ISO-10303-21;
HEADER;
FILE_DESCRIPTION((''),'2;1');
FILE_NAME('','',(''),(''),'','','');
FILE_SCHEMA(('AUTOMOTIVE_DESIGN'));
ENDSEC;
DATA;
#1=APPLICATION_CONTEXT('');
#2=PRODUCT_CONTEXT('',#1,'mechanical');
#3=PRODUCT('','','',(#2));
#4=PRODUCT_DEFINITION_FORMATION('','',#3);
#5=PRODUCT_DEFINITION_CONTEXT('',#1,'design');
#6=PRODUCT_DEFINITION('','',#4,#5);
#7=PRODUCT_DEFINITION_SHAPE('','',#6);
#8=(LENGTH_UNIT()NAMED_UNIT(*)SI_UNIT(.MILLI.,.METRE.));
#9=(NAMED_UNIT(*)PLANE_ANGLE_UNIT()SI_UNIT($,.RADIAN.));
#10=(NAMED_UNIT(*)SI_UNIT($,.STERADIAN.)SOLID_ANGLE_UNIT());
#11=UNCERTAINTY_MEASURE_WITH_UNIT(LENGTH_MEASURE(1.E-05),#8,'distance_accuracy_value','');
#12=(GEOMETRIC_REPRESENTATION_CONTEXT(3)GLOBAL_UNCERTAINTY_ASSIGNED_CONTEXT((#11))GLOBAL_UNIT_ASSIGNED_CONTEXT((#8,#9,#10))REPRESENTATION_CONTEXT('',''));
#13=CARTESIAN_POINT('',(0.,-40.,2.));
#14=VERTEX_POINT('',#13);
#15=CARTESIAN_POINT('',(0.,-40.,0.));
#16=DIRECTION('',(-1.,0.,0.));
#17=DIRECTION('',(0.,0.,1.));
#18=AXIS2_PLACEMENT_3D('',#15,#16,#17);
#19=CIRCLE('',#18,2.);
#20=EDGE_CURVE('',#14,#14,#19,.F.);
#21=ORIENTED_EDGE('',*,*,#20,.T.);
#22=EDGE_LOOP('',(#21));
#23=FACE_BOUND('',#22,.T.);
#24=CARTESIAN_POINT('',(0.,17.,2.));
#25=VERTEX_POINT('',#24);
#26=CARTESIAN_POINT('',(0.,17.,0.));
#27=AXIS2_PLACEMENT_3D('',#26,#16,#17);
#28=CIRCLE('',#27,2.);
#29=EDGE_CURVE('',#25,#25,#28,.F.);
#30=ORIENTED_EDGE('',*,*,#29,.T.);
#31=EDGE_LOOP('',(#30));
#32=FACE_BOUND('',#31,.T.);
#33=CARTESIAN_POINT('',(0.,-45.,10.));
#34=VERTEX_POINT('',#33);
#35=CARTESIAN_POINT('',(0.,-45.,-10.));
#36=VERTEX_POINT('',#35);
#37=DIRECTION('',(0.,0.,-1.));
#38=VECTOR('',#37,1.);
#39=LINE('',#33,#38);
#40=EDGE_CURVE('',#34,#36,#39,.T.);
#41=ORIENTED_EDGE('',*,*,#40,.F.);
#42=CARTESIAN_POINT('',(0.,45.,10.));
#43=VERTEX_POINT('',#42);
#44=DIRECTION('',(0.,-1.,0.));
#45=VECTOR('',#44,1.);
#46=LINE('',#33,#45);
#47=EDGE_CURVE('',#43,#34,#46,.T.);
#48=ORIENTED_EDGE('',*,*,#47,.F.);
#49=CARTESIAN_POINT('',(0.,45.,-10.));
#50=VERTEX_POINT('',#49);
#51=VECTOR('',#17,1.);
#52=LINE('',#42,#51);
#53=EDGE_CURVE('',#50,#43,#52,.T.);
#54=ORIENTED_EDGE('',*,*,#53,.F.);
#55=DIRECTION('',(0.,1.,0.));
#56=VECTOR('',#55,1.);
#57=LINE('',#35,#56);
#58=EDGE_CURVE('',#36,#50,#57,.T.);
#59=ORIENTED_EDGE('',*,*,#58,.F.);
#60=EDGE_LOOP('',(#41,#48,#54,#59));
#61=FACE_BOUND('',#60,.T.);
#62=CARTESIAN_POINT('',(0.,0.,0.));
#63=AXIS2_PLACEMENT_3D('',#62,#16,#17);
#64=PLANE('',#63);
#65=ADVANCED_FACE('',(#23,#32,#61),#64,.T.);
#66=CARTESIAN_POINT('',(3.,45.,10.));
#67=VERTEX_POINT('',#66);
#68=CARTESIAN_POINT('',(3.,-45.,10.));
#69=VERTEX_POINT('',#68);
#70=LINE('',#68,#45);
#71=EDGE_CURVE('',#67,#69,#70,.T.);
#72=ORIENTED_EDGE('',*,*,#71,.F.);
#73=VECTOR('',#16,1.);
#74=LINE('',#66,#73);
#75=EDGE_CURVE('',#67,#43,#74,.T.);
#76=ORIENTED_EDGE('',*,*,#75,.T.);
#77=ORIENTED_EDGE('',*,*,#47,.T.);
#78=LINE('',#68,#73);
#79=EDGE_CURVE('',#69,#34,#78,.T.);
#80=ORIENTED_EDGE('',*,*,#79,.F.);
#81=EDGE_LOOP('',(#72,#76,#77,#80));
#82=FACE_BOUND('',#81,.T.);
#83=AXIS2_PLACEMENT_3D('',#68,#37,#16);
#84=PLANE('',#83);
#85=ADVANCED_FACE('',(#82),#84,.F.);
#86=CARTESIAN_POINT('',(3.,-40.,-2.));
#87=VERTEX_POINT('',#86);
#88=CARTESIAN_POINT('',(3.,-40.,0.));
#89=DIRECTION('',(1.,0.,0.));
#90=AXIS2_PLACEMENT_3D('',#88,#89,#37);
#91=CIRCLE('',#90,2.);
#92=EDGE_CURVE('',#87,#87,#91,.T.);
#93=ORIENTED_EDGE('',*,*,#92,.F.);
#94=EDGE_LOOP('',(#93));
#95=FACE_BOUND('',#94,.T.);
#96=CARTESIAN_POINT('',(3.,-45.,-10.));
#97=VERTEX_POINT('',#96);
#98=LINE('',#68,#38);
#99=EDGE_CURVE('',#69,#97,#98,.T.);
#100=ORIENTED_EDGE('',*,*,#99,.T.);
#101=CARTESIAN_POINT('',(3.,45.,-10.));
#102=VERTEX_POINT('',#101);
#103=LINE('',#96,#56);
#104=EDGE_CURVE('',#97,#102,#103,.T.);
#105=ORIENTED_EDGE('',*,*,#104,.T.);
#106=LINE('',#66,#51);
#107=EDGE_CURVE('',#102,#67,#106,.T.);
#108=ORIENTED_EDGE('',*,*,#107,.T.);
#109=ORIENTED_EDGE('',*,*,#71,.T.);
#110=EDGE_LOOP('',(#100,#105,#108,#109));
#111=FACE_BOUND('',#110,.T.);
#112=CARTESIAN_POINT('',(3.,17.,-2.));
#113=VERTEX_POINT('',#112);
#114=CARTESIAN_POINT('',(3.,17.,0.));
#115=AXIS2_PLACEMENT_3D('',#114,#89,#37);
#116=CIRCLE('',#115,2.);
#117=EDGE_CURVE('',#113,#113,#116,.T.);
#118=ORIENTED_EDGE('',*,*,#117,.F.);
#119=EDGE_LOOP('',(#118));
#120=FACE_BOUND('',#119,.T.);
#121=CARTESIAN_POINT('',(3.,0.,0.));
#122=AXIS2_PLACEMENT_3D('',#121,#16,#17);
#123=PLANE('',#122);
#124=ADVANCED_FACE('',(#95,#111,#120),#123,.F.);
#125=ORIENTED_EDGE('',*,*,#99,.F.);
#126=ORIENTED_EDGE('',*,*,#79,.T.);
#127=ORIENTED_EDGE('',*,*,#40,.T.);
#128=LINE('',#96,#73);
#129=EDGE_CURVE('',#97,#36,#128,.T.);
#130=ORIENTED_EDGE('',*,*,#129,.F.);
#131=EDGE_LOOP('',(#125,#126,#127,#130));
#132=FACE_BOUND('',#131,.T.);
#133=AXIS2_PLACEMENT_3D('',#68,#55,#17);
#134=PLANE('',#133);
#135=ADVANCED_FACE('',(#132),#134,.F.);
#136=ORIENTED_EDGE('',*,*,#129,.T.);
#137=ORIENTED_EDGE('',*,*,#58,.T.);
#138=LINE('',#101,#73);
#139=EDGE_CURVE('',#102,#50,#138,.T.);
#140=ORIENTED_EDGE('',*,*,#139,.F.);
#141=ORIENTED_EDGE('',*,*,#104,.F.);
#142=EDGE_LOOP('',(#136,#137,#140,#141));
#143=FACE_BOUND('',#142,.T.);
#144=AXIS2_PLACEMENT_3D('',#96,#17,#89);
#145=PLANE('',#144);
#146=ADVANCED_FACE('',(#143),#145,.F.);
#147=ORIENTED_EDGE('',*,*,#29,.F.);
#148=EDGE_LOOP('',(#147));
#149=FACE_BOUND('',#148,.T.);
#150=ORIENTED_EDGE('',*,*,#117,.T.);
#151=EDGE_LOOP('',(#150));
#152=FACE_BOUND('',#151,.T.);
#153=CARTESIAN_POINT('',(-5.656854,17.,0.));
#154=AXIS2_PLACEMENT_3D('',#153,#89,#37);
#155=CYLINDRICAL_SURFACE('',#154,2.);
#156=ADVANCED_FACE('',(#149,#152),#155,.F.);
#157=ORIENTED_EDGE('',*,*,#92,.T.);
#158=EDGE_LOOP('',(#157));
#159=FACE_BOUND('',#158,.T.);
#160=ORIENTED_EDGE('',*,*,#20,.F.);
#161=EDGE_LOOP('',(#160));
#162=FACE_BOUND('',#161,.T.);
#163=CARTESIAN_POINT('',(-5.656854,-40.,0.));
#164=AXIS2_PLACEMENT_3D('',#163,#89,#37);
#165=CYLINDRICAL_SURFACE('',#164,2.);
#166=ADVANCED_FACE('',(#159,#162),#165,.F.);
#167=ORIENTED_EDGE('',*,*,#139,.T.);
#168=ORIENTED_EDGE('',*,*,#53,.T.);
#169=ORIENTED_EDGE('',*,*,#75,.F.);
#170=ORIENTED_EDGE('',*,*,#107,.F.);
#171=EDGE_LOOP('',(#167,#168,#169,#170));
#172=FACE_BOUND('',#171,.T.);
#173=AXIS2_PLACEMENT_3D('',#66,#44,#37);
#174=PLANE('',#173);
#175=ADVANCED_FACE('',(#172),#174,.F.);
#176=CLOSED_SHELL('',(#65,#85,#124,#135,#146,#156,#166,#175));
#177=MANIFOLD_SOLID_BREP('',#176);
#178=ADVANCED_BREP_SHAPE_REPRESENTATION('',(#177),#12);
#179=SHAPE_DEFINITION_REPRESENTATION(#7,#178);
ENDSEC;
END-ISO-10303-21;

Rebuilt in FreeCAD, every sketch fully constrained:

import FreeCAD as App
import Part
import Sketcher
Q = App.Units.Quantity

doc = App.newDocument("Part")
body = doc.addObject("PartDesign::Body", "Body")

sketch1 = body.newObject("Sketcher::SketchObject", "Sketch")
sketch1.AttachmentSupport = (doc.getObject("YZ_Plane"), [""])
sketch1.MapMode = "FlatFace"
sketch1.addGeometry(Part.LineSegment(App.Vector(45, 10, 0), App.Vector(-45, 10, 0)), False)
sketch1.addGeometry(Part.LineSegment(App.Vector(-45, 10, 0), App.Vector(-45, -10, 0)), False)
sketch1.addGeometry(Part.LineSegment(App.Vector(-45, -10, 0), App.Vector(45, -10, 0)), False)
sketch1.addGeometry(Part.LineSegment(App.Vector(45, -10, 0), App.Vector(45, 10, 0)), False)
sketch1.addConstraint(Sketcher.Constraint("Coincident", 0, 2, 1, 1))
sketch1.addConstraint(Sketcher.Constraint("Coincident", 1, 2, 2, 1))
sketch1.addConstraint(Sketcher.Constraint("Coincident", 2, 2, 3, 1))
sketch1.addConstraint(Sketcher.Constraint("Coincident", 3, 2, 0, 1))
sketch1.addConstraint(Sketcher.Constraint("Horizontal", 0))
sketch1.addConstraint(Sketcher.Constraint("Vertical", 1))
sketch1.addConstraint(Sketcher.Constraint("Horizontal", 2))
sketch1.addConstraint(Sketcher.Constraint("Vertical", 3))
sketch1.addConstraint(Sketcher.Constraint("Symmetric", 0, 2, 2, 2, -1, 1))
sketch1.addConstraint(Sketcher.Constraint("DistanceX", 0, 2, 0, 1, Q("90 mm")))
sketch1.addConstraint(Sketcher.Constraint("DistanceY", 1, 2, 1, 1, Q("20 mm")))
pad1 = body.newObject("PartDesign::Pad", "Pad")
pad1.Profile = sketch1
pad1.Length = 3

sketch2 = body.newObject("Sketcher::SketchObject", "Sketch001")
sketch2.AttachmentSupport = (doc.getObject("YZ_Plane"), [""])
sketch2.MapMode = "FlatFace"
sketch2.AttachmentOffset = App.Placement(App.Vector(0, 0, 3), App.Rotation())
sketch2.addGeometry(Part.Circle(App.Vector(17, 0, 0), App.Vector(0, 0, 1), 2), False)
sketch2.addGeometry(Part.Circle(App.Vector(-40, 0, 0), App.Vector(0, 0, 1), 2), False)
sketch2.addConstraint(Sketcher.Constraint("Equal", 0, 1))
sketch2.addConstraint(Sketcher.Constraint("PointOnObject", 0, 3, -1))
sketch2.addConstraint(Sketcher.Constraint("PointOnObject", 1, 3, -1))
sketch2.addConstraint(Sketcher.Constraint("Diameter", 0, Q("4 mm")))
sketch2.addConstraint(Sketcher.Constraint("DistanceX", -1, 1, 0, 3, Q("17 mm")))
sketch2.addConstraint(Sketcher.Constraint("DistanceX", 1, 3, -1, 1, Q("40 mm")))
pocket1 = body.newObject("PartDesign::Pocket", "Pocket")
pocket1.Profile = sketch2
pocket1.Length = 3

doc.recompute()
